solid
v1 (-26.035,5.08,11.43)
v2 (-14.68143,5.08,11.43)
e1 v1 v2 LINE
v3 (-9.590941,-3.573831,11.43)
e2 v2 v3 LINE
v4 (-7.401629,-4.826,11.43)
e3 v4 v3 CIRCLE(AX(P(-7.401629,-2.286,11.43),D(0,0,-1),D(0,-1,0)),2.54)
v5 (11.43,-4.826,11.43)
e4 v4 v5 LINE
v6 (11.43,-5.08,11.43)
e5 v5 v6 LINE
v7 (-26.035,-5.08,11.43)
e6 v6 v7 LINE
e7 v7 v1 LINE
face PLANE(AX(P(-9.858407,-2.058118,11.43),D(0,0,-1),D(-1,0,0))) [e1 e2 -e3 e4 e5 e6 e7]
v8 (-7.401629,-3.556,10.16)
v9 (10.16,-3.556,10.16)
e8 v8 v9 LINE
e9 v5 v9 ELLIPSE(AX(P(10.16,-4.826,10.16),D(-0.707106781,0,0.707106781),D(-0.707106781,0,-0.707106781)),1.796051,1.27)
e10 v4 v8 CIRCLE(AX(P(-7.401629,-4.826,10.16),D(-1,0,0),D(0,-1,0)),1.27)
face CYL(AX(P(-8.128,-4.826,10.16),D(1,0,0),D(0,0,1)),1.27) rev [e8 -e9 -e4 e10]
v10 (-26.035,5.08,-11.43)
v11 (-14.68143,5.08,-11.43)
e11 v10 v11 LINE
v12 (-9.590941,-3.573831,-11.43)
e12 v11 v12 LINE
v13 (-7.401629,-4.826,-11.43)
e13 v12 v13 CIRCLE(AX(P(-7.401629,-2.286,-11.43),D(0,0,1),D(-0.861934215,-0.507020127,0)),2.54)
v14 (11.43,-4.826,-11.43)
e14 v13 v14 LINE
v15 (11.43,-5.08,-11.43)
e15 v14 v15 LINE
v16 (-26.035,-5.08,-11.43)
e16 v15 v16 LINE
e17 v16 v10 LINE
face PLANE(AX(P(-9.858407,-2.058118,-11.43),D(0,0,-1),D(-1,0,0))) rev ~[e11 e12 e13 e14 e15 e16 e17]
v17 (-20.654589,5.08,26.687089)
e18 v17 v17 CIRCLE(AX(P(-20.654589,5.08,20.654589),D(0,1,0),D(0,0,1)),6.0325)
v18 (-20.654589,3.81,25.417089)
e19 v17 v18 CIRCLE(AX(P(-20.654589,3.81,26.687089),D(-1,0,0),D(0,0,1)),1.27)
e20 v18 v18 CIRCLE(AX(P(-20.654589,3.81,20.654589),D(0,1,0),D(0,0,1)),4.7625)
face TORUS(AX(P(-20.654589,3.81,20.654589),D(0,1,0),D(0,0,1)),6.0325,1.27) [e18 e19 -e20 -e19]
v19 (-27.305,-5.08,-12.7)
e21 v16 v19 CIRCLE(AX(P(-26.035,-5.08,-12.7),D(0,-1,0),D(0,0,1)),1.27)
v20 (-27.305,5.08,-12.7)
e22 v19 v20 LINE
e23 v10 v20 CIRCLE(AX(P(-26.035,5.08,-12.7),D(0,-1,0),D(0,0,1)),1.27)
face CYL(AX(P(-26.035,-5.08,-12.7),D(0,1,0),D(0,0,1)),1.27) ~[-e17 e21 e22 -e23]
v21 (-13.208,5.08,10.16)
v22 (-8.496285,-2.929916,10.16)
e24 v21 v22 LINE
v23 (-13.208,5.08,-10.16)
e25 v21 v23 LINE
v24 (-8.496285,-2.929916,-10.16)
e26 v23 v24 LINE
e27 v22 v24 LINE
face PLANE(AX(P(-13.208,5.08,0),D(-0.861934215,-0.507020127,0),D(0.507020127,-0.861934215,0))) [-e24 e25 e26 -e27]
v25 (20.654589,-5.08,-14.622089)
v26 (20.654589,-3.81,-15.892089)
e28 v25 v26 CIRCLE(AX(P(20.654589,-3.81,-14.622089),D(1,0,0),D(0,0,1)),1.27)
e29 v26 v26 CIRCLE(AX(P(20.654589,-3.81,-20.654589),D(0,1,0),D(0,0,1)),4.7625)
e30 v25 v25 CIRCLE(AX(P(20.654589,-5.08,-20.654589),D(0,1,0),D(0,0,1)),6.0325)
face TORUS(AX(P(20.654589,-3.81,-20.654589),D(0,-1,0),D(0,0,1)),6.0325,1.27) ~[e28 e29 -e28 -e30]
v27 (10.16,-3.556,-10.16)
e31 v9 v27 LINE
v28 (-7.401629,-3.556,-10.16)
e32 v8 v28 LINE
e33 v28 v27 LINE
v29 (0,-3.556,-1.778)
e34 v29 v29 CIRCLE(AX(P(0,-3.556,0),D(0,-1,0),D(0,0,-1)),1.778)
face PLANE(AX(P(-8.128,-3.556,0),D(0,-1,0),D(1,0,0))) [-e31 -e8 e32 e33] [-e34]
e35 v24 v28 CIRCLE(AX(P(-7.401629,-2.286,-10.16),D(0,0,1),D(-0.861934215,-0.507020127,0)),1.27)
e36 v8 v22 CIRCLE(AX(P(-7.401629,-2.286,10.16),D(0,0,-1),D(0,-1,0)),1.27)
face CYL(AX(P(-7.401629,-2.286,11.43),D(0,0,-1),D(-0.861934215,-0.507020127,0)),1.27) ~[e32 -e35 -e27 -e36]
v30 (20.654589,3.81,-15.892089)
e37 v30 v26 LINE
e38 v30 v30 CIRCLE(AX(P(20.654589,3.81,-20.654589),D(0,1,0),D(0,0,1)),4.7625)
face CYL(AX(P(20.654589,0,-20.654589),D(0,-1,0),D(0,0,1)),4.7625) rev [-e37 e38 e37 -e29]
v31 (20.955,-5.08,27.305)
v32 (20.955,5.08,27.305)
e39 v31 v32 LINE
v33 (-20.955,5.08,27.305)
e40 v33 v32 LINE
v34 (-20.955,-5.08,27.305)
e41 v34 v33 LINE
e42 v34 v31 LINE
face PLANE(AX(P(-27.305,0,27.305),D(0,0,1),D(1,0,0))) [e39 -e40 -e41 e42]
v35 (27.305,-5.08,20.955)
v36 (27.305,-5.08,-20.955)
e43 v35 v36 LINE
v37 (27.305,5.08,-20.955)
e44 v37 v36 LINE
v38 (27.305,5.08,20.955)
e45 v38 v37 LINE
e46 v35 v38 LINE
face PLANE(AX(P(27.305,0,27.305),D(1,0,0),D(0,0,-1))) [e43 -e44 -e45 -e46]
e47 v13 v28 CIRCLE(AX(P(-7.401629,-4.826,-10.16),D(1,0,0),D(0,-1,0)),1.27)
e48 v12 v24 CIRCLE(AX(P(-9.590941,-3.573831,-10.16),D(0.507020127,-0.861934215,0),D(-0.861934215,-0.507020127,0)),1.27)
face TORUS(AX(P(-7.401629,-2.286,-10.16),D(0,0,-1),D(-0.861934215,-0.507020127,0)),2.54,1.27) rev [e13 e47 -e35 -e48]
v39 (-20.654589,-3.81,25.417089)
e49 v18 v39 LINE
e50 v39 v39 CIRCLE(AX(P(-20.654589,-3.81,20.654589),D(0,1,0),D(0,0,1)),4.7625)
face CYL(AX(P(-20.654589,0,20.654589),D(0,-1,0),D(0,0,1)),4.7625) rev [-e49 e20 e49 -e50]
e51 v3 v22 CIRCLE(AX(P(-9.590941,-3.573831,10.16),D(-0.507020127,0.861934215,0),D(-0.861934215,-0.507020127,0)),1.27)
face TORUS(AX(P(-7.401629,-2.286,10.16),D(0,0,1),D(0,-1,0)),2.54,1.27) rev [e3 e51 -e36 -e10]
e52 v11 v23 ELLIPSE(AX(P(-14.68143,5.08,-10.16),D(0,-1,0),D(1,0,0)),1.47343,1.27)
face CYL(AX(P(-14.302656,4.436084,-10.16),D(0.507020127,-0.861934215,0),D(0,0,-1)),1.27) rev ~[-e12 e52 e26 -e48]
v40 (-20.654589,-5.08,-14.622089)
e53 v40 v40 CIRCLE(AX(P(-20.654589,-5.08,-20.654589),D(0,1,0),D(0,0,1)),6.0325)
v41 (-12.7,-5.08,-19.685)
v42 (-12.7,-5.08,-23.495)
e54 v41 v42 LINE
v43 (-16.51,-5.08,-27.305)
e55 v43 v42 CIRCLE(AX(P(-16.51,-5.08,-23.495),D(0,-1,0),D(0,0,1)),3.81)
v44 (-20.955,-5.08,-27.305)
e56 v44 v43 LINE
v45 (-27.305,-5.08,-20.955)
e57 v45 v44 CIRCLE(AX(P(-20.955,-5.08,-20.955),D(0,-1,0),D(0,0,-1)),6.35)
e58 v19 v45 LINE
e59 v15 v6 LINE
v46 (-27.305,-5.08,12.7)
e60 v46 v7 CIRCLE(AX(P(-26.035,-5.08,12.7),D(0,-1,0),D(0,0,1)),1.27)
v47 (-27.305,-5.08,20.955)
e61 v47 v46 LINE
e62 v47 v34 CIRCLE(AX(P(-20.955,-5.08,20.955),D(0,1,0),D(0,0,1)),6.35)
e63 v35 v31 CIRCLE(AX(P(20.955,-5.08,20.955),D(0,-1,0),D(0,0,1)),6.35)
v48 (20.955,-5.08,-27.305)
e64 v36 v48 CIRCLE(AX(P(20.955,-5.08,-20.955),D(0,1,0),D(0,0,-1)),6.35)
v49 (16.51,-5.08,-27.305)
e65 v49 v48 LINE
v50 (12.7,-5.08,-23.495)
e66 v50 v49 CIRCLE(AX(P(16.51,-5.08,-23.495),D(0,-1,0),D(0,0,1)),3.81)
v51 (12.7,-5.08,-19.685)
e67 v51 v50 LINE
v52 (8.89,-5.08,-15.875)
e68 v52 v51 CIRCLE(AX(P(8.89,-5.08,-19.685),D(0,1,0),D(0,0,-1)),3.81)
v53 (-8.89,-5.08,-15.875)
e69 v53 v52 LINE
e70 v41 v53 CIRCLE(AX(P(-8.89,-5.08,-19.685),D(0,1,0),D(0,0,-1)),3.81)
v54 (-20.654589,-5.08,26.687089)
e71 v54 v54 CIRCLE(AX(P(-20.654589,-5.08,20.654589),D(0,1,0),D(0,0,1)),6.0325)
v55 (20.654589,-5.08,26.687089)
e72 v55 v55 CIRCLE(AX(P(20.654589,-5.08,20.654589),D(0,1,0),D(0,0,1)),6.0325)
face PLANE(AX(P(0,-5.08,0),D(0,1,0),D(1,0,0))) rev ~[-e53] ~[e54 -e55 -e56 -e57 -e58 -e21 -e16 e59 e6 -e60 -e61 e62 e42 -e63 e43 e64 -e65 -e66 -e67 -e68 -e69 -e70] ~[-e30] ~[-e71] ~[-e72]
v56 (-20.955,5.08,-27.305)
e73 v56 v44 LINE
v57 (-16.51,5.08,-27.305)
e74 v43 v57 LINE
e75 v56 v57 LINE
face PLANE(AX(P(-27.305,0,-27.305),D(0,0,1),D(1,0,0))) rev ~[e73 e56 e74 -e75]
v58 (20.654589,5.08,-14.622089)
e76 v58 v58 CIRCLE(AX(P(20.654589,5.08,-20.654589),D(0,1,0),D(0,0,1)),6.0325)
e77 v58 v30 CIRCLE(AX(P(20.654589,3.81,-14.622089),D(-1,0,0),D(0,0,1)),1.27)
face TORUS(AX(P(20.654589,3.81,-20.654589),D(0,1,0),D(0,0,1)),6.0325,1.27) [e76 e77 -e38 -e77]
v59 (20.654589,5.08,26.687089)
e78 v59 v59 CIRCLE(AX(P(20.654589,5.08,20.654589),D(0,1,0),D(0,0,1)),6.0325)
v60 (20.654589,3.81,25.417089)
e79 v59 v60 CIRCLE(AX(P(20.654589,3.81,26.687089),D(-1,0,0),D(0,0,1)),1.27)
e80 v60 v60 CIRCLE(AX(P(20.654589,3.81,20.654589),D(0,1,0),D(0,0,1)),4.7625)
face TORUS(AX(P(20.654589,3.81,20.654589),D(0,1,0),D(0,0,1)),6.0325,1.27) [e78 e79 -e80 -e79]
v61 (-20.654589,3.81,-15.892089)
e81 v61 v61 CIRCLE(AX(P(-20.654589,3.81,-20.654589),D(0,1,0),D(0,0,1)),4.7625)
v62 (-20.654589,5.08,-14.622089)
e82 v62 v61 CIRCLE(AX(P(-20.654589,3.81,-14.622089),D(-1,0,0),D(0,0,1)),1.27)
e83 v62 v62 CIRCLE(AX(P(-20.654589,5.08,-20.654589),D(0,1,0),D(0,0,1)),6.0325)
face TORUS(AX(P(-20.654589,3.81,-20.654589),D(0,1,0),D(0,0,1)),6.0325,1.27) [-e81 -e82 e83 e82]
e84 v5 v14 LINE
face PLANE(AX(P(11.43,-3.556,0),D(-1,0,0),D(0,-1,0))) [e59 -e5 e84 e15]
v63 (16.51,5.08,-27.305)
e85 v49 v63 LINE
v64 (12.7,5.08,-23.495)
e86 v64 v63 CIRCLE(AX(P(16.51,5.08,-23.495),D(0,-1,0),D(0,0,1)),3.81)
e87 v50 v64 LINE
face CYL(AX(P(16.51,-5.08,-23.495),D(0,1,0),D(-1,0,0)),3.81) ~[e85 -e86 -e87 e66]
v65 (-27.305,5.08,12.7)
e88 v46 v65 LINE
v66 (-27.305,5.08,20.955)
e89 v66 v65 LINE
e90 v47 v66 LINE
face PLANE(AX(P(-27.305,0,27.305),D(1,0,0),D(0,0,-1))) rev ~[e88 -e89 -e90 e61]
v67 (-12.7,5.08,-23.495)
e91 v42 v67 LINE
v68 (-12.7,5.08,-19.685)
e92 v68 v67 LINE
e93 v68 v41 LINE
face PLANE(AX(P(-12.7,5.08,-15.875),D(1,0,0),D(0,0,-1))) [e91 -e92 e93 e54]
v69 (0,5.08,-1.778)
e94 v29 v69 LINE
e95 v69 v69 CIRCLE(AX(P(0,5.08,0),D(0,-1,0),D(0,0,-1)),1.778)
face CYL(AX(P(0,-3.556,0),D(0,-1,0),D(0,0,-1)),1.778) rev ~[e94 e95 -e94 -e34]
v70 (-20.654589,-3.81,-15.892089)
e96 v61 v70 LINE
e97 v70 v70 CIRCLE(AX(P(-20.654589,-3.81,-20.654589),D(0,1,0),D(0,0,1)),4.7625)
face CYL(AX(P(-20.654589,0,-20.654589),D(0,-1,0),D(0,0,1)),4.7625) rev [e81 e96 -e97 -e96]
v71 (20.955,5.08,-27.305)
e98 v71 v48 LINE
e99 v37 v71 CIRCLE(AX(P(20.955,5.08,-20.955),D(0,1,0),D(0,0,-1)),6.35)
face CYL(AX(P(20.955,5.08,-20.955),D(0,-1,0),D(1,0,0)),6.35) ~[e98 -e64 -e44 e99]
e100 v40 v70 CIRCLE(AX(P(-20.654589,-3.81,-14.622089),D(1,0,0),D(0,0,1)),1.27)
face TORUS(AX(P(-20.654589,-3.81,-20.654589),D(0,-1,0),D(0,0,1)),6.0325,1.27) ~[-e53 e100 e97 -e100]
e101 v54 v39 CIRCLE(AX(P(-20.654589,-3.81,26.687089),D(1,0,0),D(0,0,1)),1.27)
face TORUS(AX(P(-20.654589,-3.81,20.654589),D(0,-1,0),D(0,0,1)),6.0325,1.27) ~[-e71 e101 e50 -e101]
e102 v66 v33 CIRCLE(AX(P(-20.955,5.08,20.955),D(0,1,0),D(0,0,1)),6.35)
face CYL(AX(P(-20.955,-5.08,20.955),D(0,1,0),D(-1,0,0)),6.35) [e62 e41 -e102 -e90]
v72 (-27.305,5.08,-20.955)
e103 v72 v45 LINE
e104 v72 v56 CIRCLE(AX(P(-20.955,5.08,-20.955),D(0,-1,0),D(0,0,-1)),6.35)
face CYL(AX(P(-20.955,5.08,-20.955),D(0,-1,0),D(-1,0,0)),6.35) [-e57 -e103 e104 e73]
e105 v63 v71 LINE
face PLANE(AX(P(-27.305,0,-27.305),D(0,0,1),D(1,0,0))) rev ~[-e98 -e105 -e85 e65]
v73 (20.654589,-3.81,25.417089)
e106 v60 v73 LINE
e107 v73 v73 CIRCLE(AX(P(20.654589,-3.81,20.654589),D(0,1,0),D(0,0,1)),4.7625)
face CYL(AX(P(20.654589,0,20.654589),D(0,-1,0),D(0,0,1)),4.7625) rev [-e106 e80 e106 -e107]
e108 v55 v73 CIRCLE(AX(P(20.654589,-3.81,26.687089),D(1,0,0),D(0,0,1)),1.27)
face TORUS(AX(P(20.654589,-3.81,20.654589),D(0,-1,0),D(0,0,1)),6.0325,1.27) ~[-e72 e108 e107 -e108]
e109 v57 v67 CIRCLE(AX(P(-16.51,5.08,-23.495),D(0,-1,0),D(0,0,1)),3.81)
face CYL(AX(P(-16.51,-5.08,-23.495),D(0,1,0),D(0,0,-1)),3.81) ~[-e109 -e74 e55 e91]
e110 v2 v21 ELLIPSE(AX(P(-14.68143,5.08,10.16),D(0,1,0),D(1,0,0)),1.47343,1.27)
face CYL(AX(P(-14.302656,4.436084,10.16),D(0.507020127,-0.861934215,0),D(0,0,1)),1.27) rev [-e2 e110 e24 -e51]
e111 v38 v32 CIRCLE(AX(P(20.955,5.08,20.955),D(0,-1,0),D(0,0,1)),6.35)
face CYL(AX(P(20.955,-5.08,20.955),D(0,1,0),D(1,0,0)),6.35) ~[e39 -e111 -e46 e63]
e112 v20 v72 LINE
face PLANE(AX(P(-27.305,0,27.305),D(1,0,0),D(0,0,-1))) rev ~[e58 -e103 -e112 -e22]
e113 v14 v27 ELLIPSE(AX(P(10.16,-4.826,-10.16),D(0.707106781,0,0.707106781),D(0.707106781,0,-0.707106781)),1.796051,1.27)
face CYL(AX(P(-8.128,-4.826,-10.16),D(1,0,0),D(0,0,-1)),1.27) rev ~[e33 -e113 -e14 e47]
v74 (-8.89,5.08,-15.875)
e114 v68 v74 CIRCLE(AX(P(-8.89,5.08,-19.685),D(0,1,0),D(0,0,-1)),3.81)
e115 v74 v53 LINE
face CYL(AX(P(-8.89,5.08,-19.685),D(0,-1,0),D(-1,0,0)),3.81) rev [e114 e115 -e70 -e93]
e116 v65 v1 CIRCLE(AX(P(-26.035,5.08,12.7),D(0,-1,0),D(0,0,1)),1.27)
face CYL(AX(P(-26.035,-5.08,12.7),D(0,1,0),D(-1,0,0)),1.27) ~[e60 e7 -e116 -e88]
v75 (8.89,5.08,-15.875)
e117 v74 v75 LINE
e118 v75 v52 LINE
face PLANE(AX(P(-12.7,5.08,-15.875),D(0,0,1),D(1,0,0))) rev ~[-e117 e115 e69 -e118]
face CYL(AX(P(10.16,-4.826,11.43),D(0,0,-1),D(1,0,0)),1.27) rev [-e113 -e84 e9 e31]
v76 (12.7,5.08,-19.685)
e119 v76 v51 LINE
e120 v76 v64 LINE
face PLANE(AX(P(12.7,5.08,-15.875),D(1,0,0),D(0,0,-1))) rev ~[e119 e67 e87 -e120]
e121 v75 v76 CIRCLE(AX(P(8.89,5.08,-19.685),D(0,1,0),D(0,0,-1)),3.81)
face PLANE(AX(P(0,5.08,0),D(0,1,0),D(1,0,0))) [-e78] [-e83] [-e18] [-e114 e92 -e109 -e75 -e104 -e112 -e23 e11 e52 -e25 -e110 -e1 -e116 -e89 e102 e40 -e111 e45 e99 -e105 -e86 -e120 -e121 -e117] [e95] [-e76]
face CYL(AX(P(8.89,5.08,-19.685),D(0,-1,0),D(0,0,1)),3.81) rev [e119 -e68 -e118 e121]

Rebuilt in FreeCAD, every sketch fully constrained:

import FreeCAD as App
import Part
import Sketcher
Q = App.Units.Quantity


def edges_at(feature, points):
    """Names of the edges that pass closest to the given points."""
    edges = feature.Shape.Edges
    near = lambda p: min(range(len(edges)), key=lambda i: edges[i].distToShape(Part.Vertex(*p))[0])
    return sorted({f"Edge{near(p) + 1}" for p in points})


def add_polygon(sketch, points):
    """Adds a closed chain of lines whose ends are joined by coincident constraints."""
    first, n = sketch.GeometryCount, len(points)
    for a, b in zip(points, points[1:] + points[:1]):
        sketch.addGeometry(Part.LineSegment(App.Vector(*a, 0), App.Vector(*b, 0)), False)
    for i in range(n):
        sketch.addConstraint(Sketcher.Constraint("Coincident", first + i, 2, first + (i + 1) % n, 1))

doc = App.newDocument("Part")
body = doc.addObject("PartDesign::Body", "Body")

# Sketch on XZ plane
sketch1 = doc.addObject("Sketcher::SketchObject", "Sketch")
body.addObject(sketch1)
sketch1.AttachmentSupport = (doc.XZ_Plane, [""])
sketch1.MapMode = "FlatFace"
add_polygon(sketch1, [(-27.3, -27.3), (-27.3, 27.3), (27.3, 27.3), (27.3, -27.3)])  # lines 0-3
sketch1.addGeometry(Part.Circle(App.Vector(-20.7, 20.7, 0), App.Vector(0, 0, 1), 4.8), False)  # 4
sketch1.addGeometry(Part.Circle(App.Vector(20.7, 20.7, 0), App.Vector(0, 0, 1), 4.8), False)  # 5
sketch1.addGeometry(Part.Circle(App.Vector(-20.7, -20.7, 0), App.Vector(0, 0, 1), 4.8), False)  # 6
sketch1.addGeometry(Part.Circle(App.Vector(20.7, -20.7, 0), App.Vector(0, 0, 1), 4.8), False)  # 7
sketch1.addConstraint([
    Sketcher.Constraint("Vertical", 0),
    Sketcher.Constraint("Horizontal", 1),
    Sketcher.Constraint("Vertical", 2),
    Sketcher.Constraint("Horizontal", 3),
    Sketcher.Constraint("Equal", 4, 5),
    Sketcher.Constraint("Equal", 5, 6),
    Sketcher.Constraint("Equal", 6, 7),
    Sketcher.Constraint("Symmetric", 5, 3, 6, 3, -1, 1),
    Sketcher.Constraint("Symmetric", 4, 3, 7, 3, -1, 1),
    Sketcher.Constraint("Symmetric", 0, 2, 2, 2, -1, 1),
    Sketcher.Constraint("Symmetric", 4, 3, 5, 3, -2),
    Sketcher.Constraint("Equal", 3, 0),
    Sketcher.Constraint("Diameter", 4, Q("0.375 in")),
    Sketcher.Constraint("DistanceX", 1, 1, 1, 2, Q("2.15 in")),
    Sketcher.Constraint("DistanceX", 4, 3, -1, 1, Q("20.654589 mm")),
    Sketcher.Constraint("DistanceY", -1, 1, 4, 3, Q("20.654589 mm")),
])
pad1 = doc.addObject("PartDesign::Pad", "Pad")
body.addObject(pad1)
pad1.Profile = sketch1
pad1.Length = Q("0.4 in")
pad1.Midplane = True
doc.recompute()

fillet = doc.addObject("PartDesign::Fillet", "Fillet")
body.addObject(fillet)
fillet.Base = (pad1, edges_at(pad1, [
    (-27.305, 0, -27.305),
    (27.305, 0, -27.305),
    (27.305, 0, 27.305),
    (-27.305, 0, 27.305),
]))
fillet.Radius = Q("0.25 in")
doc.recompute()

fillet2 = doc.addObject("PartDesign::Fillet", "Fillet001")
body.addObject(fillet2)
fillet2.Base = (fillet, edges_at(fillet, [
    (-20.655, -5.08, -25.417),
    (-20.655, 5.08, -25.417),
    (20.655, -5.08, -25.417),
    (20.655, 5.08, -25.417),
    (20.655, -5.08, 15.892),
    (20.655, 5.08, 15.892),
    (-20.655, -5.08, 15.892),
    (-20.655, 5.08, 15.892),
]))
fillet2.Radius = Q("0.05 in")

# Sketch on XY plane
sketch2 = doc.addObject("Sketcher::SketchObject", "Sketch001")
body.addObject(sketch2)
sketch2.AttachmentSupport = (doc.XY_Plane, [""])
sketch2.MapMode = "FlatFace"
add_polygon(sketch2, [(-13.2, 5.1), (-27.3, 5.1), (-27.3, -5.1), (11.4, -5.1), (11.4, -3.6), (-8.1, -3.6)])  # lines 0-5
sketch2.addConstraint([
    Sketcher.Constraint("Horizontal", 0),
    Sketcher.Constraint("Vertical", 1),
    Sketcher.Constraint("Horizontal", 2),
    Sketcher.Constraint("Vertical", 3),
    Sketcher.Constraint("Horizontal", 4),
    Sketcher.Constraint("DistanceY", 1, 2, 1, 1, Q("0.4 in")),
    Sketcher.Constraint("DistanceX", 4, 2, 4, 1, Q("0.77 in")),
    Sketcher.Constraint("DistanceY", 3, 1, 3, 2, Q("0.06 in")),
    Sketcher.Constraint("DistanceY", -1, 1, 0, 2, Q("0.2 in")),
    Sketcher.Constraint("DistanceX", 5, 2, 4, 2, Q("0.2 in")),
    Sketcher.Constraint("DistanceX", 0, 2, 0, 1, Q("0.555 in")),
    Sketcher.Constraint("DistanceX", -1, 1, 2, 2, Q("0.45 in")),
])
pocket1 = doc.addObject("PartDesign::Pocket", "Pocket")
body.addObject(pocket1)
pocket1.Profile = sketch2
pocket1.Length = Q("0.9 in")
pocket1.Midplane = True

# Sketch on XZ plane
sketch3 = doc.addObject("Sketcher::SketchObject", "Sketch002")
body.addObject(sketch3)
sketch3.AttachmentSupport = (doc.XZ_Plane, [""])
sketch3.MapMode = "FlatFace"
sketch3.AttachmentOffset = App.Placement(App.Vector(0, 0, 0.14 * 25.4), App.Rotation())
sketch3.addGeometry(Part.Circle(App.Vector(0, 0, 0), App.Vector(0, 0, 1), 1.8), False)
sketch3.addConstraint([
    Sketcher.Constraint("Coincident", 0, 3, -1, 1),
    Sketcher.Constraint("Diameter", 0, Q("0.14 in")),
])
pocket2 = doc.addObject("PartDesign::Pocket", "Pocket001")
body.addObject(pocket2)
pocket2.Profile = sketch3
pocket2.Type = "ThroughAll"
doc.recompute()

fillet3 = doc.addObject("PartDesign::Fillet", "Fillet002")
body.addObject(fillet3)
fillet3.Base = (pocket2, edges_at(pocket2, [
    (-27.305, 0, -11.43),
    (-10.668, 0.762, -11.43),
    (1.651, -3.556, -11.43),
    (-8.128, -3.556, 0),
    (11.43, -3.556, 0),
    (-27.305, 0, 11.43),
    (1.651, -3.556, 11.43),
    (-10.668, 0.762, 11.43),
]))
fillet3.Radius = Q("0.05 in")

# Sketch on XZ plane
sketch4 = doc.addObject("Sketcher::SketchObject", "Sketch003")
body.addObject(sketch4)
sketch4.AttachmentSupport = (doc.XZ_Plane, [""])
sketch4.MapMode = "FlatFace"
sketch4.AttachmentOffset = App.Placement(App.Vector(0, 0, -0.2 * 25.4), App.Rotation())
add_polygon(sketch4, [(-13, -39), (-13, -16), (13, -16), (13, -39)])  # lines 0-3
sketch4.addConstraint([
    Sketcher.Constraint("Vertical", 0),
    Sketcher.Constraint("Horizontal", 1),
    Sketcher.Constraint("Vertical", 2),
    Sketcher.Constraint("Horizontal", 3),
    Sketcher.Constraint("DistanceX", 1, 1, 1, 2, Q("1 in")),
    Sketcher.Constraint("DistanceY", 0, 1, 0, 2, Q("0.9 in")),
    Sketcher.Constraint("DistanceX", 0, 2, -1, 1, Q("0.5 in")),
    Sketcher.Constraint("DistanceY", 0, 2, -1, 1, Q("0.625 in")),
])
pocket3 = doc.addObject("PartDesign::Pocket", "Pocket002")
body.addObject(pocket3)
pocket3.Profile = sketch4
pocket3.Type = "ThroughAll"
pocket3.Reversed = True
doc.recompute()

fillet4 = doc.addObject("PartDesign::Fillet", "Fillet003")
body.addObject(fillet4)
fillet4.Base = (pocket3, edges_at(pocket3, [
    (-12.7, 0, -27.305),
    (12.7, 0, -27.305),
    (-12.7, 0, -15.875),
    (12.7, 0, -15.875),
]))
fillet4.Radius = Q("0.15 in")

doc.recompute()
